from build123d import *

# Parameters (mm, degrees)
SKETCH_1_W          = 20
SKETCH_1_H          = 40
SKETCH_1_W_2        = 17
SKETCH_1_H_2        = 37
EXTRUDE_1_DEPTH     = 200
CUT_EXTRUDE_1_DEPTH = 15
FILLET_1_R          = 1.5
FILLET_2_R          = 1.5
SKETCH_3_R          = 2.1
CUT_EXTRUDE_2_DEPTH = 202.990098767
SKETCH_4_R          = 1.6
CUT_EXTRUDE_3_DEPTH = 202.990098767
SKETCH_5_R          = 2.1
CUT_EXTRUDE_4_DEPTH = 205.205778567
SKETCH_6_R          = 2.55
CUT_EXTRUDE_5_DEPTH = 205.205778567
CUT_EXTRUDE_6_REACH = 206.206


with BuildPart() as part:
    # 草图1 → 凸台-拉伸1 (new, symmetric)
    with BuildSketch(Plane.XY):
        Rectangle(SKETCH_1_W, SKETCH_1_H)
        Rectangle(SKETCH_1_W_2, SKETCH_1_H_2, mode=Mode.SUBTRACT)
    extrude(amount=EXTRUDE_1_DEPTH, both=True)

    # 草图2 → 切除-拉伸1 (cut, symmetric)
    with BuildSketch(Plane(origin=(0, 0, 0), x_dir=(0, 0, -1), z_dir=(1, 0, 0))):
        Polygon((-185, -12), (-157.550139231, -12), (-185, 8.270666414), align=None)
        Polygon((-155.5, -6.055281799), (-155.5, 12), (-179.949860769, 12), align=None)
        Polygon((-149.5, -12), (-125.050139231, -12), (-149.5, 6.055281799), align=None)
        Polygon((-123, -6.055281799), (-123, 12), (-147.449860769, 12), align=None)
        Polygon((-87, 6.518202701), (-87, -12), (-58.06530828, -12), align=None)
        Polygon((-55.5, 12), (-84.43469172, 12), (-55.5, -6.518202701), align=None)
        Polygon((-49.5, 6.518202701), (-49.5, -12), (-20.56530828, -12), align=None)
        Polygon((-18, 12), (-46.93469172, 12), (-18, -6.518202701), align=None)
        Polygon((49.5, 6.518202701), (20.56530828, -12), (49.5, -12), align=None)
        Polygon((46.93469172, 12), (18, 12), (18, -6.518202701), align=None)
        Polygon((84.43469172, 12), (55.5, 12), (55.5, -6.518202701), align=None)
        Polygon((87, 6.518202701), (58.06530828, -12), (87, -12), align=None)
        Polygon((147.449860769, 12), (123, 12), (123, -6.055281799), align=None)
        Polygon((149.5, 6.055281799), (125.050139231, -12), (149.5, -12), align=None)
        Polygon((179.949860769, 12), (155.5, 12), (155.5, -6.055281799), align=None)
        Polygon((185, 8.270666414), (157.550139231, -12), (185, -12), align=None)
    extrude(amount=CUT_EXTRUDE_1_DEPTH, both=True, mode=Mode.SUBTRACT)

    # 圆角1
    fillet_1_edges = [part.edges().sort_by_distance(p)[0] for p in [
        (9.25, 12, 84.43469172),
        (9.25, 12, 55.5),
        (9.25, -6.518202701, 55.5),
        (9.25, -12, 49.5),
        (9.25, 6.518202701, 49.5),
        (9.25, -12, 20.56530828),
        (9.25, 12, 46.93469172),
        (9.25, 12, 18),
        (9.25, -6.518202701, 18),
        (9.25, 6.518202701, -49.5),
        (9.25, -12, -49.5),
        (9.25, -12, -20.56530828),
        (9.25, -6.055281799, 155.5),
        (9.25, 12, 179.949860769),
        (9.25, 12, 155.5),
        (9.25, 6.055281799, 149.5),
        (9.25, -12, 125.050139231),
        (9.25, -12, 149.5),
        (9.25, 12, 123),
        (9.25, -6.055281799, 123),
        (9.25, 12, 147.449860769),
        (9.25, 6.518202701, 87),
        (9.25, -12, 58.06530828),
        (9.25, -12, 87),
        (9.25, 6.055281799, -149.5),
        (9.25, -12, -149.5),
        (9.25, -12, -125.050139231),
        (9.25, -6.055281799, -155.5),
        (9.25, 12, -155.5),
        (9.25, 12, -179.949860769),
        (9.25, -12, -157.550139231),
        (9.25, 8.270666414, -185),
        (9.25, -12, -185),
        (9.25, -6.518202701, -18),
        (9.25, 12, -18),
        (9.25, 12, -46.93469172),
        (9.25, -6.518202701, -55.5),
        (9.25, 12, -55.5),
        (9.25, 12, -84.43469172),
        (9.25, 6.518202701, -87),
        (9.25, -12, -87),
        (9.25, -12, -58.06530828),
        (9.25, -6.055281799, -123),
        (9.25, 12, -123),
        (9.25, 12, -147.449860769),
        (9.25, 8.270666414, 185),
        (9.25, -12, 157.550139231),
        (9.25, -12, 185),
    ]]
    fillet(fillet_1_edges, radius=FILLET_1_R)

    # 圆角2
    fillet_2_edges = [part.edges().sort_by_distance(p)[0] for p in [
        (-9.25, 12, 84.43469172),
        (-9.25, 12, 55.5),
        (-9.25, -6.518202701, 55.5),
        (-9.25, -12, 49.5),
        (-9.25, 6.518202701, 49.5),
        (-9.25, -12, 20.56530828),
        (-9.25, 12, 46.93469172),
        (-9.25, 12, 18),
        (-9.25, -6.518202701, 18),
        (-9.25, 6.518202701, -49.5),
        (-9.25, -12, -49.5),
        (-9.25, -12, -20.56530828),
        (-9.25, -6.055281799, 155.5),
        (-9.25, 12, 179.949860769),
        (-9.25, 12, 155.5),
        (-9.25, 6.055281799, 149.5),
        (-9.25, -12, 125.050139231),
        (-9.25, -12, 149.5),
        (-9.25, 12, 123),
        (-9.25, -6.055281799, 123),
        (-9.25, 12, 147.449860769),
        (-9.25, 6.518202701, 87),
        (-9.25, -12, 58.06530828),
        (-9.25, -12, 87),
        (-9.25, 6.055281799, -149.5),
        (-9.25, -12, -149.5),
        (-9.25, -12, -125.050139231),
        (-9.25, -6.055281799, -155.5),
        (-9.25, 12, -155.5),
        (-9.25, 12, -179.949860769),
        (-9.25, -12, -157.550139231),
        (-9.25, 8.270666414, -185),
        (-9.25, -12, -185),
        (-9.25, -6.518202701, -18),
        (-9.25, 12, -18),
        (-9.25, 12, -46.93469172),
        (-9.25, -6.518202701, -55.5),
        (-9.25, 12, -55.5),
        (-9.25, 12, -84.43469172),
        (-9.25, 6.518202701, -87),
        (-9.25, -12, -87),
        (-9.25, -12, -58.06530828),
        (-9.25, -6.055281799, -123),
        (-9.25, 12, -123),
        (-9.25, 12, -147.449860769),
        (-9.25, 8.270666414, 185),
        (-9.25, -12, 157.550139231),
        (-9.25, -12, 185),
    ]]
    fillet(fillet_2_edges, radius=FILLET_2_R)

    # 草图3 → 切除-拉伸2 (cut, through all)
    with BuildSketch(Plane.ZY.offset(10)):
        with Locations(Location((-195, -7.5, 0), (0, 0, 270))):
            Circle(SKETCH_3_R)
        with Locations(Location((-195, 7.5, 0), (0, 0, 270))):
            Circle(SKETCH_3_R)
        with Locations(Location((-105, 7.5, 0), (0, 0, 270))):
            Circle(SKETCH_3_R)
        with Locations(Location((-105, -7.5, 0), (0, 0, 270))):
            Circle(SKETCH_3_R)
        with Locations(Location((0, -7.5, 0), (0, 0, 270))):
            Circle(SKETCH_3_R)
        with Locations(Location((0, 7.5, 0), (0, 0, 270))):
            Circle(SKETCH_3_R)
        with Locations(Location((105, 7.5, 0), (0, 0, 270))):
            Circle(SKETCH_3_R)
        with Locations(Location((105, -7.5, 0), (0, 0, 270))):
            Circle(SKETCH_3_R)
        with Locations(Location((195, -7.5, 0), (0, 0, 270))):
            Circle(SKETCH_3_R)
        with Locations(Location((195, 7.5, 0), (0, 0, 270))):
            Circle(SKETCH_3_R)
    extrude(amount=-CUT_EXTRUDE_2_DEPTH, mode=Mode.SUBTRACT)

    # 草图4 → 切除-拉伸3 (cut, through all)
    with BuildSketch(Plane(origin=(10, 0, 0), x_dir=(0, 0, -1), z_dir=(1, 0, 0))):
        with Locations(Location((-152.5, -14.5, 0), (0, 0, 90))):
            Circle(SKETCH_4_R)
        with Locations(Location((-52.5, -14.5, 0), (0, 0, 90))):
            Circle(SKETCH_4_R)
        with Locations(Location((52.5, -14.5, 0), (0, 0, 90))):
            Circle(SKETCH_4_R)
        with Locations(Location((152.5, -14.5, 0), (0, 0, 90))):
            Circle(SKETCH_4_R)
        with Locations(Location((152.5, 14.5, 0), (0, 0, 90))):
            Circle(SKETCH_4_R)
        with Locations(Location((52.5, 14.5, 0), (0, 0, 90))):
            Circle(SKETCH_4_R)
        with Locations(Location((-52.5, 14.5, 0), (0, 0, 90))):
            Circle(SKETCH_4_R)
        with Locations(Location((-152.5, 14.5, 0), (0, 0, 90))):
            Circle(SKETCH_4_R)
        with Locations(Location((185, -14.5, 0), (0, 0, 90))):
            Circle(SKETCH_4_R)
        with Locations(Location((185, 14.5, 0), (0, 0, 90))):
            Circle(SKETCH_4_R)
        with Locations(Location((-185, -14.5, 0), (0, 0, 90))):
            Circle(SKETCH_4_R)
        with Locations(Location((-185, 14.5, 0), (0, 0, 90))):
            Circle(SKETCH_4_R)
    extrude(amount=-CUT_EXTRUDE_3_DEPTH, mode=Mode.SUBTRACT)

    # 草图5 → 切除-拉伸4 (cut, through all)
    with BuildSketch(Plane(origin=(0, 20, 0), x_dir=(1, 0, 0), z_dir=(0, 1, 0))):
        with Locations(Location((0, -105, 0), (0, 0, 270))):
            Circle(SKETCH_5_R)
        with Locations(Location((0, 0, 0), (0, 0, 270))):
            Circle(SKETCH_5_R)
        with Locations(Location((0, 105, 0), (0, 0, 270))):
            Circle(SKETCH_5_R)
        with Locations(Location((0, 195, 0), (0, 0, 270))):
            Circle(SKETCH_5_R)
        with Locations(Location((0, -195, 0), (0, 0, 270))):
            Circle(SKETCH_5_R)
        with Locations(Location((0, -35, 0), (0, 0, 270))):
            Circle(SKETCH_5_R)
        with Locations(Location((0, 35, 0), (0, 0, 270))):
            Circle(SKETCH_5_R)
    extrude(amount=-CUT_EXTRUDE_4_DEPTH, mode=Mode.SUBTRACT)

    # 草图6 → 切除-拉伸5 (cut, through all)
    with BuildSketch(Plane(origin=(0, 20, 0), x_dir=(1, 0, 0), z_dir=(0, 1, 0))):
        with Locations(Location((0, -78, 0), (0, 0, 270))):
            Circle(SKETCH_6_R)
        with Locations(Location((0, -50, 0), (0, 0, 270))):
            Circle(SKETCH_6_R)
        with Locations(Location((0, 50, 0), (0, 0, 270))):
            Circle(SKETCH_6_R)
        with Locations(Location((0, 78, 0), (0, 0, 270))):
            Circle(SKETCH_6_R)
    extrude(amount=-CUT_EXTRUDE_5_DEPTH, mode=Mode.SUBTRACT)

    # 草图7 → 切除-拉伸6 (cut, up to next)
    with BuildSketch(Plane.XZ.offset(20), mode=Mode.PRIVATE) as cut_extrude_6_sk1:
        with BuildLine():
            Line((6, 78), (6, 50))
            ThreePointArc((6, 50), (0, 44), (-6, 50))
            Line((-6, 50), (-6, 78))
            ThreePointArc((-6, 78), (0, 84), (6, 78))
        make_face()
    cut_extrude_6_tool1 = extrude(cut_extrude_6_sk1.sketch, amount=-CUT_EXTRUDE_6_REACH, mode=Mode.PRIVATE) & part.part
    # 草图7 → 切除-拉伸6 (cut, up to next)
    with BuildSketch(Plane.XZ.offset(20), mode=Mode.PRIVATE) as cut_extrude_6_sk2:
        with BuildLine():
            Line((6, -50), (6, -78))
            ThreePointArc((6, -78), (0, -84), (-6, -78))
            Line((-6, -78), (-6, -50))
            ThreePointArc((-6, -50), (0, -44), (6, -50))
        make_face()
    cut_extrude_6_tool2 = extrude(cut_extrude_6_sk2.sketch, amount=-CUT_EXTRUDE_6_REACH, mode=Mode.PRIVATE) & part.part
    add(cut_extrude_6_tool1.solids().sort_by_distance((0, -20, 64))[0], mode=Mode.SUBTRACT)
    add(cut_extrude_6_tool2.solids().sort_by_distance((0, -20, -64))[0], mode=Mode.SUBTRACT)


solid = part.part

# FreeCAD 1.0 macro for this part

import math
import FreeCAD as App
import Part
import Sketcher

V = App.Vector


def edges_at(feature, points):
    """Names of the edges that pass closest to the given points."""
    edges = feature.Shape.Edges
    near = lambda p: min(range(len(edges)), key=lambda i: edges[i].distToShape(Part.Vertex(*p))[0])
    return sorted({f"Edge{near(p) + 1}" for p in points})


def add_polygon(sketch, points):
    """Adds a closed chain of lines whose ends are joined by coincident constraints."""
    first, n = sketch.GeometryCount, len(points)
    for a, b in zip(points, points[1:] + points[:1]):
        sketch.addGeometry(Part.LineSegment(App.Vector(*a, 0), App.Vector(*b, 0)), False)
    for i in range(n):
        sketch.addConstraint(Sketcher.Constraint("Coincident", first + i, 2, first + (i + 1) % n, 1))

doc = App.newDocument("Part")
body = doc.addObject("PartDesign::Body", "Body")

# Sketch on XY plane
sketch1 = body.newObject("Sketcher::SketchObject", "Sketch")
sketch1.AttachmentSupport = (doc.getObject("XY_Plane"), [""])
sketch1.MapMode = "FlatFace"
add_polygon(sketch1, [(-10, 20), (-10, -20), (10, -20), (10, 20)])  # lines 0-3
add_polygon(sketch1, [(8, -18), (-8, -18), (-8, 18), (8, 18)])  # lines 4-7
sketch1.addConstraint([
    Sketcher.Constraint("Vertical", 0),
    Sketcher.Constraint("Horizontal", 1),
    Sketcher.Constraint("Vertical", 2),
    Sketcher.Constraint("Horizontal", 3),
    Sketcher.Constraint("Horizontal", 4),
    Sketcher.Constraint("Vertical", 5),
    Sketcher.Constraint("Horizontal", 6),
    Sketcher.Constraint("Vertical", 7),
    Sketcher.Constraint("Symmetric", 0, 2, 2, 2, -1, 1),
    Sketcher.Constraint("Symmetric", 4, 2, 6, 2, -1, 1),
    Sketcher.Constraint("DistanceX", 1, 1, 1, 2, 20.0),
    Sketcher.Constraint("DistanceX", 4, 2, 4, 1, 17.0),
    Sketcher.Constraint("DistanceY", 0, 2, 0, 1, 40.0),
    Sketcher.Constraint("DistanceY", 5, 1, 5, 2, 37.0),
])
pad1 = body.newObject("PartDesign::Pad", "Pad")
pad1.Profile = sketch1
pad1.Length = 400
pad1.Midplane = True

# Sketch on YZ plane
sketch2 = body.newObject("Sketcher::SketchObject", "Sketch001")
sketch2.AttachmentSupport = (doc.getObject("YZ_Plane"), [""])
sketch2.MapMode = "FlatFace"
add_polygon(sketch2, [(-12, 185), (-12, 158), (8, 185)])  # lines 0-2
add_polygon(sketch2, [(-6, 156), (12, 156), (12, 180)])  # lines 3-5
add_polygon(sketch2, [(-12, 150), (-12, 125), (6, 150)])  # lines 6-8
add_polygon(sketch2, [(-6, 123), (12, 123), (12, 147)])  # lines 9-11
add_polygon(sketch2, [(7, 87), (-12, 87), (-12, 58)])  # lines 12-14
add_polygon(sketch2, [(12, 56), (12, 84), (-7, 56)])  # lines 15-17
add_polygon(sketch2, [(7, 50), (-12, 50), (-12, 21)])  # lines 18-20
add_polygon(sketch2, [(12, 18), (12, 47), (-7, 18)])  # lines 21-23
add_polygon(sketch2, [(7, -50), (-12, -21), (-12, -50)])  # lines 24-26
add_polygon(sketch2, [(12, -47), (12, -18), (-7, -18)])  # lines 27-29
add_polygon(sketch2, [(12, -84), (12, -56), (-7, -56)])  # lines 30-32
add_polygon(sketch2, [(7, -87), (-12, -58), (-12, -87)])  # lines 33-35
add_polygon(sketch2, [(12, -147), (12, -123), (-6, -123)])  # lines 36-38
add_polygon(sketch2, [(6, -150), (-12, -125), (-12, -150)])  # lines 39-41
add_polygon(sketch2, [(12, -180), (12, -156), (-6, -156)])  # lines 42-44
add_polygon(sketch2, [(8, -185), (-12, -158), (-12, -185)])  # lines 45-47
sketch2.addConstraint([
    Sketcher.Constraint("Vertical", 0),
    Sketcher.Constraint("Horizontal", 2),
    Sketcher.Constraint("Horizontal", 3),
    Sketcher.Constraint("Vertical", 4),
    Sketcher.Constraint("Vertical", 6),
    Sketcher.Constraint("Horizontal", 8),
    Sketcher.Constraint("Horizontal", 9),
    Sketcher.Constraint("Vertical", 10),
    Sketcher.Constraint("Horizontal", 12),
    Sketcher.Constraint("Vertical", 13),
    Sketcher.Constraint("Vertical", 15),
    Sketcher.Constraint("Horizontal", 17),
    Sketcher.Constraint("Horizontal", 18),
    Sketcher.Constraint("Vertical", 19),
    Sketcher.Constraint("Vertical", 21),
    Sketcher.Constraint("Horizontal", 23),
    Sketcher.Constraint("Vertical", 25),
    Sketcher.Constraint("Horizontal", 26),
    Sketcher.Constraint("Vertical", 27),
    Sketcher.Constraint("Horizontal", 28),
    Sketcher.Constraint("Vertical", 30),
    Sketcher.Constraint("Horizontal", 31),
    Sketcher.Constraint("Vertical", 34),
    Sketcher.Constraint("Horizontal", 35),
    Sketcher.Constraint("Vertical", 36),
    Sketcher.Constraint("Horizontal", 37),
    Sketcher.Constraint("Vertical", 40),
    Sketcher.Constraint("Horizontal", 41),
    Sketcher.Constraint("Vertical", 42),
    Sketcher.Constraint("Horizontal", 43),
    Sketcher.Constraint("Vertical", 46),
    Sketcher.Constraint("Horizontal", 47),
    Sketcher.Constraint("Symmetric", 19, 2, 24, 2, -1),
    Sketcher.Constraint("Symmetric", 20, 2, 26, 2, -1),
    Sketcher.Constraint("Symmetric", 23, 2, 27, 2, -1),
    Sketcher.Constraint("Symmetric", 17, 2, 30, 2, -1),
    Sketcher.Constraint("Symmetric", 13, 2, 33, 2, -1),
    Sketcher.Constraint("Symmetric", 14, 2, 35, 2, -1),
    Sketcher.Constraint("Symmetric", 9, 2, 36, 2, -1),
    Sketcher.Constraint("Symmetric", 6, 2, 39, 2, -1),
    Sketcher.Constraint("Symmetric", 7, 2, 41, 2, -1),
    Sketcher.Constraint("Symmetric", 3, 2, 42, 2, -1),
    Sketcher.Constraint("Symmetric", 0, 2, 45, 2, -1),
    Sketcher.Constraint("Symmetric", 1, 2, 47, 2, -1),
    Sketcher.Constraint("Parallel", 1, 5),
    Sketcher.Constraint("Parallel", 5, 7),
    Sketcher.Constraint("Parallel", 7, 11),
    Sketcher.Constraint("Parallel", 14, 16),
    Sketcher.Constraint("Parallel", 16, 20),
    Sketcher.Constraint("Parallel", 20, 22),
    Sketcher.Constraint("Parallel", 24, 29),
    Sketcher.Constraint("Parallel", 29, 32),
    Sketcher.Constraint("Parallel", 38, 39),
    Sketcher.Constraint("Parallel", 39, 44),
    Sketcher.Constraint("Vertical", 2, 2, 6, 2),
    Sketcher.Constraint("Vertical", 4, 2, 9, 2),
    Sketcher.Constraint("Vertical", 5, 2, 11, 2),
    Sketcher.Constraint("Vertical", 8, 2, 12, 2),
    Sketcher.Constraint("Vertical", 10, 2, 15, 2),
    Sketcher.Constraint("Vertical", 13, 2, 18, 2),
    Sketcher.Constraint("Vertical", 14, 2, 20, 2),
    Sketcher.Constraint("Vertical", 17, 2, 21, 2),
    Sketcher.Constraint("Vertical", 16, 2, 22, 2),
    Sketcher.Constraint("Vertical", 22, 2, 28, 2),
    Sketcher.Constraint("Vertical", 28, 2, 31, 2),
    Sketcher.Constraint("Vertical", 11, 2, 37, 2),
    Sketcher.Constraint("Vertical", 37, 2, 43, 2),
    Sketcher.Constraint("Equal", 3, 8),
    Sketcher.Constraint("Equal", 12, 17),
    Sketcher.Constraint("DistanceX", 0, 2, -1, 1, 12.0),
    Sketcher.Constraint("DistanceY", -1, 1, 1, 2, 185.0),
    Sketcher.Constraint("DistanceX", -1, 1, 3, 2, 12.0),
    Sketcher.Constraint("DistanceY", -1, 1, 9, 2, 123.0),
    Sketcher.Constraint("DistanceY", -1, 1, 12, 2, 87.0),
    Sketcher.Constraint("DistanceY", -1, 1, 22, 2, 18.0),
    Sketcher.Constraint("DistanceY", 7, 2, 3, 2, 6.0),
    Sketcher.Constraint("DistanceY", 18, 2, 16, 2, 6.0),
    Sketcher.Constraint("DistanceY", 25, 2, 18, 2, 99.0),
    Sketcher.Constraint("DistanceY", -1, 1, 3, 2, 155.5),
    Sketcher.Constraint("DistanceY", 6, 2, 0, 2, 32.5),
    Sketcher.Constraint("DistanceX", 3, 1, 3, 2, 18.055282),
    Sketcher.Constraint("DistanceY", 0, 2, 0, 1, 27.449861),
    Sketcher.Constraint("DistanceY", 13, 2, 13, 1, 28.934692),
    Sketcher.Constraint("Distance", 14, 34.353169),
])
pocket1 = body.newObject("PartDesign::Pocket", "Pocket")
pocket1.Profile = sketch2
pocket1.Length = 30
pocket1.Midplane = True
doc.recompute()

fillet = body.newObject("PartDesign::Fillet", "Fillet")
fillet.Base = (pocket1, edges_at(pocket1, [
    (9.25, 12, 84.435),
    (9.25, 12, 55.5),
    (9.25, -6.518, 55.5),
    (9.25, -12, 49.5),
    (9.25, 6.518, 49.5),
    (9.25, -12, 20.565),
    (9.25, 12, 46.935),
    (9.25, 12, 18),
    (9.25, -6.518, 18),
    (9.25, 6.518, -49.5),
    (9.25, -12, -49.5),
    (9.25, -12, -20.565),
    (9.25, -6.055, 155.5),
    (9.25, 12, 179.95),
    (9.25, 12, 155.5),
    (9.25, 6.055, 149.5),
    (9.25, -12, 125.05),
    (9.25, -12, 149.5),
    (9.25, 12, 123),
    (9.25, -6.055, 123),
    (9.25, 12, 147.45),
    (9.25, 6.518, 87),
    (9.25, -12, 58.065),
    (9.25, -12, 87),
    (9.25, 6.055, -149.5),
    (9.25, -12, -149.5),
    (9.25, -12, -125.05),
    (9.25, -6.055, -155.5),
    (9.25, 12, -155.5),
    (9.25, 12, -179.95),
    (9.25, -12, -157.55),
    (9.25, 8.271, -185),
    (9.25, -12, -185),
    (9.25, -6.518, -18),
    (9.25, 12, -18),
    (9.25, 12, -46.935),
    (9.25, -6.518, -55.5),
    (9.25, 12, -55.5),
    (9.25, 12, -84.435),
    (9.25, 6.518, -87),
    (9.25, -12, -87),
    (9.25, -12, -58.065),
    (9.25, -6.055, -123),
    (9.25, 12, -123),
    (9.25, 12, -147.45),
    (9.25, 8.271, 185),
    (9.25, -12, 157.55),
    (9.25, -12, 185),
]))
fillet.Radius = 1.5
doc.recompute()

fillet2 = body.newObject("PartDesign::Fillet", "Fillet001")
fillet2.Base = (fillet, edges_at(fillet, [
    (-9.25, 12, 84.435),
    (-9.25, 12, 55.5),
    (-9.25, -6.518, 55.5),
    (-9.25, -12, 49.5),
    (-9.25, 6.518, 49.5),
    (-9.25, -12, 20.565),
    (-9.25, 12, 46.935),
    (-9.25, 12, 18),
    (-9.25, -6.518, 18),
    (-9.25, 6.518, -49.5),
    (-9.25, -12, -49.5),
    (-9.25, -12, -20.565),
    (-9.25, -6.055, 155.5),
    (-9.25, 12, 179.95),
    (-9.25, 12, 155.5),
    (-9.25, 6.055, 149.5),
    (-9.25, -12, 125.05),
    (-9.25, -12, 149.5),
    (-9.25, 12, 123),
    (-9.25, -6.055, 123),
    (-9.25, 12, 147.45),
    (-9.25, 6.518, 87),
    (-9.25, -12, 58.065),
    (-9.25, -12, 87),
    (-9.25, 6.055, -149.5),
    (-9.25, -12, -149.5),
    (-9.25, -12, -125.05),
    (-9.25, -6.055, -155.5),
    (-9.25, 12, -155.5),
    (-9.25, 12, -179.95),
    (-9.25, -12, -157.55),
    (-9.25, 8.271, -185),
    (-9.25, -12, -185),
    (-9.25, -6.518, -18),
    (-9.25, 12, -18),
    (-9.25, 12, -46.935),
    (-9.25, -6.518, -55.5),
    (-9.25, 12, -55.5),
    (-9.25, 12, -84.435),
    (-9.25, 6.518, -87),
    (-9.25, -12, -87),
    (-9.25, -12, -58.065),
    (-9.25, -6.055, -123),
    (-9.25, 12, -123),
    (-9.25, 12, -147.45),
    (-9.25, 8.271, 185),
    (-9.25, -12, 157.55),
    (-9.25, -12, 185),
]))
fillet2.Radius = 1.5

# Sketch on YZ plane
sketch3 = body.newObject("Sketcher::SketchObject", "Sketch002")
sketch3.AttachmentSupport = (doc.getObject("YZ_Plane"), [""])
sketch3.MapMode = "FlatFace"
sketch3.AttachmentOffset = App.Placement(V(0, 0, -10), App.Rotation())
sketch3.addGeometry([
    Part.Circle(V(-7.5, -195, 0), V(0, 0, 1), 2.1),  # 0
    Part.Circle(V(7.5, -195, 0), V(0, 0, 1), 2.1),  # 1
    Part.Circle(V(7.5, -105, 0), V(0, 0, 1), 2.1),  # 2
    Part.Circle(V(-7.5, -105, 0), V(0, 0, 1), 2.1),  # 3
    Part.Circle(V(-7.5, 0, 0), V(0, 0, 1), 2.1),  # 4
    Part.Circle(V(7.5, 0, 0), V(0, 0, 1), 2.1),  # 5
    Part.Circle(V(7.5, 105, 0), V(0, 0, 1), 2.1),  # 6
    Part.Circle(V(-7.5, 105, 0), V(0, 0, 1), 2.1),  # 7
    Part.Circle(V(-7.5, 195, 0), V(0, 0, 1), 2.1),  # 8
    Part.Circle(V(7.5, 195, 0), V(0, 0, 1), 2.1),  # 9
], False)
sketch3.addConstraint([
    Sketcher.Constraint("Equal", 0, 1),
    Sketcher.Constraint("Equal", 1, 2),
    Sketcher.Constraint("Equal", 2, 3),
    Sketcher.Constraint("Equal", 3, 4),
    Sketcher.Constraint("Equal", 4, 5),
    Sketcher.Constraint("Equal", 5, 6),
    Sketcher.Constraint("Equal", 6, 7),
    Sketcher.Constraint("Equal", 7, 8),
    Sketcher.Constraint("Equal", 8, 9),
    Sketcher.Constraint("Symmetric", 4, 3, 5, 3, -1, 1),
    Sketcher.Constraint("Symmetric", 3, 3, 6, 3, -1, 1),
    Sketcher.Constraint("Symmetric", 2, 3, 7, 3, -1, 1),
    Sketcher.Constraint("Symmetric", 1, 3, 8, 3, -1, 1),
    Sketcher.Constraint("Symmetric", 0, 3, 9, 3, -1, 1),
    Sketcher.Constraint("Symmetric", 0, 3, 1, 3, -2),
    Sketcher.Constraint("Symmetric", 2, 3, 3, 3, -2),
    Sketcher.Constraint("PointOnObject", 4, 3, -1),
    Sketcher.Constraint("Vertical", 1, 3, 2, 3),
    Sketcher.Constraint("Vertical", 3, 3, 4, 3),
    Sketcher.Constraint("Diameter", 0, 4.2),
    Sketcher.Constraint("DistanceY", 0, 3, -1, 1, 195.0),
    Sketcher.Constraint("DistanceY", 2, 3, -1, 1, 105.0),
    Sketcher.Constraint("DistanceX", 0, 3, 1, 3, 15.0),
])
pocket2 = body.newObject("PartDesign::Pocket", "Pocket001")
pocket2.Profile = sketch3
pocket2.Type = "ThroughAll"
pocket2.Reversed = True

# Sketch on YZ plane
sketch4 = body.newObject("Sketcher::SketchObject", "Sketch003")
sketch4.AttachmentSupport = (doc.getObject("YZ_Plane"), [""])
sketch4.MapMode = "FlatFace"
sketch4.AttachmentOffset = App.Placement(V(0, 0, 10), App.Rotation())
sketch4.addGeometry([
    Part.Circle(V(-14.5, 152.5, 0), V(0, 0, 1), 1.6),  # 0
    Part.Circle(V(-14.5, 52.5, 0), V(0, 0, 1), 1.6),  # 1
    Part.Circle(V(-14.5, -52.5, 0), V(0, 0, 1), 1.6),  # 2
    Part.Circle(V(-14.5, -152.5, 0), V(0, 0, 1), 1.6),  # 3
    Part.Circle(V(14.5, -152.5, 0), V(0, 0, 1), 1.6),  # 4
    Part.Circle(V(14.5, -52.5, 0), V(0, 0, 1), 1.6),  # 5
    Part.Circle(V(14.5, 52.5, 0), V(0, 0, 1), 1.6),  # 6
    Part.Circle(V(14.5, 152.5, 0), V(0, 0, 1), 1.6),  # 7
    Part.Circle(V(-14.5, -185, 0), V(0, 0, 1), 1.6),  # 8
    Part.Circle(V(14.5, -185, 0), V(0, 0, 1), 1.6),  # 9
    Part.Circle(V(-14.5, 185, 0), V(0, 0, 1), 1.6),  # 10
    Part.Circle(V(14.5, 185, 0), V(0, 0, 1), 1.6),  # 11
], False)
sketch4.addConstraint([
    Sketcher.Constraint("Equal", 0, 1),
    Sketcher.Constraint("Equal", 1, 2),
    Sketcher.Constraint("Equal", 2, 3),
    Sketcher.Constraint("Equal", 3, 4),
    Sketcher.Constraint("Equal", 4, 5),
    Sketcher.Constraint("Equal", 5, 6),
    Sketcher.Constraint("Equal", 6, 7),
    Sketcher.Constraint("Equal", 7, 8),
    Sketcher.Constraint("Equal", 8, 9),
    Sketcher.Constraint("Equal", 9, 10),
    Sketcher.Constraint("Equal", 10, 11),
    Sketcher.Constraint("Symmetric", 0, 3, 4, 3, -1, 1),
    Sketcher.Constraint("Symmetric", 1, 3, 5, 3, -1, 1),
    Sketcher.Constraint("Symmetric", 2, 3, 6, 3, -1, 1),
    Sketcher.Constraint("Symmetric", 3, 3, 7, 3, -1, 1),
    Sketcher.Constraint("Symmetric", 9, 3, 10, 3, -1, 1),
    Sketcher.Constraint("Symmetric", 8, 3, 11, 3, -1, 1),
    Sketcher.Constraint("Symmetric", 3, 3, 4, 3, -2),
    Sketcher.Constraint("Symmetric", 2, 3, 5, 3, -2),
    Sketcher.Constraint("Symmetric", 8, 3, 9, 3, -2),
    Sketcher.Constraint("Vertical", 0, 3, 1, 3),
    Sketcher.Constraint("Vertical", 3, 3, 8, 3),
    Sketcher.Constraint("Diameter", 0, 3.2),
    Sketcher.Constraint("DistanceY", 8, 3, -1, 1, 185.0),
    Sketcher.Constraint("DistanceY", 1, 3, 0, 3, 100.0),
    Sketcher.Constraint("DistanceY", 2, 3, 1, 3, 105.0),
    Sketcher.Constraint("DistanceX", 3, 3, 4, 3, 29.0),
])
pocket3 = body.newObject("PartDesign::Pocket", "Pocket002")
pocket3.Profile = sketch4
pocket3.Type = "ThroughAll"

# Sketch on XZ plane
sketch5 = body.newObject("Sketcher::SketchObject", "Sketch004")
sketch5.AttachmentSupport = (doc.getObject("XZ_Plane"), [""])
sketch5.MapMode = "FlatFace"
sketch5.AttachmentOffset = App.Placement(V(0, 0, -20), App.Rotation())
sketch5.addGeometry([
    Part.Circle(V(0, 105, 0), V(0, 0, 1), 2.1),  # 0
    Part.Circle(V(0, 0, 0), V(0, 0, 1), 2.1),  # 1
    Part.Circle(V(0, -105, 0), V(0, 0, 1), 2.1),  # 2
    Part.Circle(V(0, -195, 0), V(0, 0, 1), 2.1),  # 3
    Part.Circle(V(0, 195, 0), V(0, 0, 1), 2.1),  # 4
    Part.Circle(V(0, 35, 0), V(0, 0, 1), 2.1),  # 5
    Part.Circle(V(0, -35, 0), V(0, 0, 1), 2.1),  # 6
], False)
sketch5.addConstraint([
    Sketcher.Constraint("Coincident", 1, 3, -1, 1),
    Sketcher.Constraint("Equal", 0, 1),
    Sketcher.Constraint("Equal", 1, 2),
    Sketcher.Constraint("Equal", 2, 3),
    Sketcher.Constraint("Equal", 3, 4),
    Sketcher.Constraint("Equal", 4, 5),
    Sketcher.Constraint("Equal", 5, 6),
    Sketcher.Constraint("Symmetric", 0, 3, 2, 3, -1, 1),
    Sketcher.Constraint("Symmetric", 3, 3, 4, 3, -1, 1),
    Sketcher.Constraint("Symmetric", 5, 3, 6, 3, -1, 1),
    Sketcher.Constraint("PointOnObject", 0, 3, -2),
    Sketcher.Constraint("PointOnObject", 3, 3, -2),
    Sketcher.Constraint("PointOnObject", 5, 3, -2),
    Sketcher.Constraint("Diameter", 0, 4.2),
    Sketcher.Constraint("DistanceY", -1, 1, 0, 3, 105.0),
    Sketcher.Constraint("DistanceY", 3, 3, -1, 1, 195.0),
    Sketcher.Constraint("DistanceY", -1, 1, 5, 3, 35.0),
])
pocket4 = body.newObject("PartDesign::Pocket", "Pocket003")
pocket4.Profile = sketch5
pocket4.Type = "ThroughAll"
pocket4.Reversed = True

# Sketch on XZ plane
sketch6 = body.newObject("Sketcher::SketchObject", "Sketch005")
sketch6.AttachmentSupport = (doc.getObject("XZ_Plane"), [""])
sketch6.MapMode = "FlatFace"
sketch6.AttachmentOffset = App.Placement(V(0, 0, -20), App.Rotation())
sketch6.addGeometry([
    Part.Circle(V(0, 78, 0), V(0, 0, 1), 2.5),
    Part.Circle(V(0, 50, 0), V(0, 0, 1), 2.5),
    Part.Circle(V(0, -50, 0), V(0, 0, 1), 2.5),
    Part.Circle(V(0, -78, 0), V(0, 0, 1), 2.5),
], False)
sketch6.addConstraint([
    Sketcher.Constraint("Equal", 0, 1),
    Sketcher.Constraint("Equal", 1, 2),
    Sketcher.Constraint("Equal", 2, 3),
    Sketcher.Constraint("Symmetric", 1, 3, 2, 3, -1, 1),
    Sketcher.Constraint("Symmetric", 0, 3, 3, 3, -1, 1),
    Sketcher.Constraint("PointOnObject", 0, 3, -2),
    Sketcher.Constraint("PointOnObject", 1, 3, -2),
    Sketcher.Constraint("Diameter", 0, 5.1),
    Sketcher.Constraint("DistanceY", -1, 1, 0, 3, 78.0),
    Sketcher.Constraint("DistanceY", -1, 1, 1, 3, 50.0),
])
pocket5 = body.newObject("PartDesign::Pocket", "Pocket004")
pocket5.Profile = sketch6
pocket5.Type = "ThroughAll"
pocket5.Reversed = True

# Sketch on XZ plane
sketch7 = body.newObject("Sketcher::SketchObject", "Sketch006")
sketch7.AttachmentSupport = (doc.getObject("XZ_Plane"), [""])
sketch7.MapMode = "FlatFace"
sketch7.AttachmentOffset = App.Placement(V(0, 0, 20), App.Rotation())
sketch7.addGeometry([
    Part.LineSegment(V(6, 50, 0), V(6, 78, 0)),
    Part.ArcOfCircle(Part.Circle(V(0, 78, 0), V(0, 0, 1), 6), math.radians(0), math.radians(180)),
    Part.LineSegment(V(-6, 78, 0), V(-6, 50, 0)),
    Part.ArcOfCircle(Part.Circle(V(0, 50, 0), V(0, 0, 1), 6), math.radians(180), math.radians(360)),
], False)
sketch7.addConstraint([
    Sketcher.Constraint("Tangent", 0, 2, 1, 1),
    Sketcher.Constraint("Tangent", 1, 2, 2, 1),
    Sketcher.Constraint("Tangent", 2, 2, 3, 1),
    Sketcher.Constraint("Tangent", 3, 2, 0, 1),
    Sketcher.Constraint("Vertical", 0),
    Sketcher.Constraint("Vertical", 2),
    Sketcher.Constraint("PointOnObject", 1, 3, -2),
    Sketcher.Constraint("Radius", 1, 6.0),
    Sketcher.Constraint("DistanceY", 0, 1, 0, 2, 28.0),
    Sketcher.Constraint("DistanceY", -1, 1, 1, 3, 78.0),
])
pocket6 = body.newObject("PartDesign::Pocket", "Pocket005")
pocket6.Profile = sketch7
pocket6.Type = "UpToFirst"

# Sketch on XZ plane
sketch8 = body.newObject("Sketcher::SketchObject", "Sketch007")
sketch8.AttachmentSupport = (doc.getObject("XZ_Plane"), [""])
sketch8.MapMode = "FlatFace"
sketch8.AttachmentOffset = App.Placement(V(0, 0, 20), App.Rotation())
sketch8.addGeometry([
    Part.LineSegment(V(6, -78, 0), V(6, -50, 0)),
    Part.ArcOfCircle(Part.Circle(V(0, -50, 0), V(0, 0, 1), 6), math.radians(0), math.radians(180)),
    Part.LineSegment(V(-6, -50, 0), V(-6, -78, 0)),
    Part.ArcOfCircle(Part.Circle(V(0, -78, 0), V(0, 0, 1), 6), math.radians(180), math.radians(360)),
], False)
sketch8.addConstraint([
    Sketcher.Constraint("Tangent", 0, 2, 1, 1),
    Sketcher.Constraint("Tangent", 1, 2, 2, 1),
    Sketcher.Constraint("Tangent", 2, 2, 3, 1),
    Sketcher.Constraint("Tangent", 3, 2, 0, 1),
    Sketcher.Constraint("Vertical", 0),
    Sketcher.Constraint("Vertical", 2),
    Sketcher.Constraint("PointOnObject", 1, 3, -2),
    Sketcher.Constraint("Radius", 1, 6.0),
    Sketcher.Constraint("DistanceY", 0, 1, 0, 2, 28.0),
    Sketcher.Constraint("DistanceY", 1, 3, -1, 1, 50.0),
])
pocket7 = body.newObject("PartDesign::Pocket", "Pocket006")
pocket7.Profile = sketch8
pocket7.Type = "UpToFirst"

doc.recompute()
